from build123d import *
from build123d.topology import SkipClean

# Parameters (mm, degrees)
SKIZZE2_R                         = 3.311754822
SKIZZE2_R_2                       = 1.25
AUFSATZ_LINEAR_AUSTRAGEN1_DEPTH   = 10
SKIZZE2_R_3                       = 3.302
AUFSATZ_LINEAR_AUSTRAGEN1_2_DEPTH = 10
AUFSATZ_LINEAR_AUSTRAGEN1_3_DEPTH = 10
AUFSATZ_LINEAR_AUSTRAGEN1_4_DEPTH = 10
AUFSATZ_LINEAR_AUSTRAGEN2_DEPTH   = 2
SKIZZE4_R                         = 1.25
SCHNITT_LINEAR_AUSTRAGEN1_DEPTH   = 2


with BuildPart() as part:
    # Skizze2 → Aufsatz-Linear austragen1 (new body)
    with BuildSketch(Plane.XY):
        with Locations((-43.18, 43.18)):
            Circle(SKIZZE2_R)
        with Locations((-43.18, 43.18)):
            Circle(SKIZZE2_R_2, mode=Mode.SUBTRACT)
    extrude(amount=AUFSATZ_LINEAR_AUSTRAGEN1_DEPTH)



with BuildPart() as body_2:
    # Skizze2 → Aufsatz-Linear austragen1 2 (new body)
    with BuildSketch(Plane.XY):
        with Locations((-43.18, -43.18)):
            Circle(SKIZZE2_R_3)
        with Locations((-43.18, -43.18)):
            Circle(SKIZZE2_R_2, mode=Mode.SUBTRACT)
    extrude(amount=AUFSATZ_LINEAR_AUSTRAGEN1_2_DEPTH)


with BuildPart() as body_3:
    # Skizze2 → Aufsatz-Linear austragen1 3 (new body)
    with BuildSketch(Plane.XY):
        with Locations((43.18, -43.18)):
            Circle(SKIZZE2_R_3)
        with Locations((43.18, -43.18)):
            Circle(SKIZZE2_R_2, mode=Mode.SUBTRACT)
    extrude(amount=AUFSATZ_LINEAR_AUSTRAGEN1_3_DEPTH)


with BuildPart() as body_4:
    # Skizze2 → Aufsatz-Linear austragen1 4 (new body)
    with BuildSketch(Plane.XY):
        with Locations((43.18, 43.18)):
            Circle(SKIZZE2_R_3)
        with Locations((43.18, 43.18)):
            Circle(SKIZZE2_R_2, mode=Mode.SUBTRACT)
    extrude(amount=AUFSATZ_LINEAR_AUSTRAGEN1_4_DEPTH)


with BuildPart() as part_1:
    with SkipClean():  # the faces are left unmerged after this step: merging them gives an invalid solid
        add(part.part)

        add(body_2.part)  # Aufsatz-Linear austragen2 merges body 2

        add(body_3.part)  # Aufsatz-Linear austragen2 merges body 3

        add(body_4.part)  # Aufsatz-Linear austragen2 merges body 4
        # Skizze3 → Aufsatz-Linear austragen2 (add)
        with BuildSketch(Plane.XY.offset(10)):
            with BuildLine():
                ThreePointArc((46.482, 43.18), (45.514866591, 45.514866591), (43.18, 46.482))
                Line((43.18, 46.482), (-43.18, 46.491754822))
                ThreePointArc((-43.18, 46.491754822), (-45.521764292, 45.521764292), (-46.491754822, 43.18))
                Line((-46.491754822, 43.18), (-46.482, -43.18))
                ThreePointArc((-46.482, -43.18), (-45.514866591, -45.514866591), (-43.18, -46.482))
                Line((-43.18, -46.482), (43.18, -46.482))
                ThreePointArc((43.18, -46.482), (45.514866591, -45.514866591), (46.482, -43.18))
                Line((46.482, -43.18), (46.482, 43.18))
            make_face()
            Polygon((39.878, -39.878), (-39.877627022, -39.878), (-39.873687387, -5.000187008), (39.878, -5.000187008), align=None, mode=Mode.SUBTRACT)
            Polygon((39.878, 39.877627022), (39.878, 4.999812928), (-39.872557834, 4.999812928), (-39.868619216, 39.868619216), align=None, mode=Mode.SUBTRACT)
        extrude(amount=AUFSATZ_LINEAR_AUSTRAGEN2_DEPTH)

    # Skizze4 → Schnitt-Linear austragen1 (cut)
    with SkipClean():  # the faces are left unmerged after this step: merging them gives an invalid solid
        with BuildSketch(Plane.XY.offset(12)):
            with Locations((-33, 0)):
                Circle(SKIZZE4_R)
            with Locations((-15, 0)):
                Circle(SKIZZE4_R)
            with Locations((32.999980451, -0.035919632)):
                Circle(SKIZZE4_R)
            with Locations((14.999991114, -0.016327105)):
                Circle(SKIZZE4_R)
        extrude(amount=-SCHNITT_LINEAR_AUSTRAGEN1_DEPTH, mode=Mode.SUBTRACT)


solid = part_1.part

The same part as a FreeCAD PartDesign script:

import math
import FreeCAD as App
import Part
import Sketcher
from FreeCAD import Vector
Q = App.Units.Quantity

doc = App.newDocument("Part")
body = doc.addObject("PartDesign::Body", "Body")

# Sketch on XY plane
sketch1 = body.newObject("Sketcher::SketchObject", "Sketch")
sketch1.AttachmentSupport = (doc.getObject("XY_Plane"), [""])
sketch1.MapMode = "FlatFace"
sketch1.addGeometry(Part.Circle(Vector(-43.18, 43.18, 0), Vector(0, 0, 1), 3.311755), False)
sketch1.addGeometry(Part.Circle(Vector(-43.18, 43.18, 0), Vector(0, 0, 1), 1.25), False)
sketch1.addConstraint(Sketcher.Constraint("Coincident", 1, 3, 0, 3))
sketch1.addConstraint(Sketcher.Constraint("Diameter", 1, Q("2.5 mm")))
sketch1.addConstraint(Sketcher.Constraint("Diameter", 0, Q("6.62351 mm")))
sketch1.addConstraint(Sketcher.Constraint("DistanceX", 0, 3, -1, 1, Q("43.18 mm")))
sketch1.addConstraint(Sketcher.Constraint("DistanceY", -1, 1, 0, 3, Q("43.18 mm")))
pad1 = body.newObject("PartDesign::Pad", "Pad")
pad1.Profile = sketch1
pad1.Length = 10
body2 = doc.addObject("PartDesign::Body", "Body001")

# Sketch on XY plane
sketch2 = body2.newObject("Sketcher::SketchObject", "Sketch001")
sketch2.AttachmentSupport = (doc.getObject("XY_Plane001"), [""])
sketch2.MapMode = "FlatFace"
sketch2.addGeometry(Part.Circle(Vector(-43.18, -43.18, 0), Vector(0, 0, 1), 3.302), False)
sketch2.addGeometry(Part.Circle(Vector(-43.18, -43.18, 0), Vector(0, 0, 1), 1.25), False)
sketch2.addConstraint(Sketcher.Constraint("Coincident", 1, 3, 0, 3))
sketch2.addConstraint(Sketcher.Constraint("Diameter", 1, Q("2.5 mm")))
sketch2.addConstraint(Sketcher.Constraint("Diameter", 0, Q("6.604 mm")))
sketch2.addConstraint(Sketcher.Constraint("DistanceX", 0, 3, -1, 1, Q("43.18 mm")))
sketch2.addConstraint(Sketcher.Constraint("DistanceY", 0, 3, -1, 1, Q("43.18 mm")))
pad2 = body2.newObject("PartDesign::Pad", "Pad001")
pad2.Profile = sketch2
pad2.Length = 10
body3 = doc.addObject("PartDesign::Body", "Body002")

# Sketch on XY plane
sketch3 = body3.newObject("Sketcher::SketchObject", "Sketch002")
sketch3.AttachmentSupport = (doc.getObject("XY_Plane002"), [""])
sketch3.MapMode = "FlatFace"
sketch3.addGeometry(Part.Circle(Vector(43.18, -43.18, 0), Vector(0, 0, 1), 3.302), False)
sketch3.addGeometry(Part.Circle(Vector(43.18, -43.18, 0), Vector(0, 0, 1), 1.25), False)
sketch3.addConstraint(Sketcher.Constraint("Coincident", 1, 3, 0, 3))
sketch3.addConstraint(Sketcher.Constraint("Diameter", 1, Q("2.5 mm")))
sketch3.addConstraint(Sketcher.Constraint("Diameter", 0, Q("6.604 mm")))
sketch3.addConstraint(Sketcher.Constraint("DistanceX", -1, 1, 0, 3, Q("43.18 mm")))
sketch3.addConstraint(Sketcher.Constraint("DistanceY", 0, 3, -1, 1, Q("43.18 mm")))
pad3 = body3.newObject("PartDesign::Pad", "Pad002")
pad3.Profile = sketch3
pad3.Length = 10
body4 = doc.addObject("PartDesign::Body", "Body003")

# Sketch on XY plane
sketch4 = body4.newObject("Sketcher::SketchObject", "Sketch003")
sketch4.AttachmentSupport = (doc.getObject("XY_Plane003"), [""])
sketch4.MapMode = "FlatFace"
sketch4.addGeometry(Part.Circle(Vector(43.18, 43.18, 0), Vector(0, 0, 1), 3.302), False)
sketch4.addGeometry(Part.Circle(Vector(43.18, 43.18, 0), Vector(0, 0, 1), 1.25), False)
sketch4.addConstraint(Sketcher.Constraint("Coincident", 1, 3, 0, 3))
sketch4.addConstraint(Sketcher.Constraint("Diameter", 1, Q("2.5 mm")))
sketch4.addConstraint(Sketcher.Constraint("Diameter", 0, Q("6.604 mm")))
sketch4.addConstraint(Sketcher.Constraint("DistanceX", -1, 1, 0, 3, Q("43.18 mm")))
sketch4.addConstraint(Sketcher.Constraint("DistanceY", -1, 1, 0, 3, Q("43.18 mm")))
pad4 = body4.newObject("PartDesign::Pad", "Pad003")
pad4.Profile = sketch4
pad4.Length = 10
body.AllowCompound = True
doc.recompute()

boolean = body.newObject("PartDesign::Boolean", "Boolean")
boolean.Type = "Fuse"
boolean.addObjects([body2])
doc.recompute()

boolean2 = body.newObject("PartDesign::Boolean", "Boolean001")
boolean2.Type = "Fuse"
boolean2.addObjects([body3])
doc.recompute()

boolean3 = body.newObject("PartDesign::Boolean", "Boolean002")
boolean3.Type = "Fuse"
boolean3.addObjects([body4])

# Sketch on XY plane
sketch5 = body.newObject("Sketcher::SketchObject", "Sketch004")
sketch5.AttachmentSupport = (doc.getObject("XY_Plane"), [""])
sketch5.MapMode = "FlatFace"
sketch5.AttachmentOffset = App.Placement(Vector(0, 0, 10), App.Rotation())
sketch5.addGeometry(Part.ArcOfCircle(Part.Circle(Vector(43.18, 43.18, 0), Vector(0, 0, 1), 3.302), math.radians(0), math.radians(90)), False)
sketch5.addGeometry(Part.LineSegment(Vector(43.18, 46.482, 0), Vector(-43.18, 46.491755, 0)), False)
sketch5.addGeometry(Part.ArcOfCircle(Part.Circle(Vector(-43.18, 43.18, 0), Vector(0, 0, 1), 3.311755), math.radians(90), math.radians(180)), False)
sketch5.addGeometry(Part.LineSegment(Vector(-46.491755, 43.18, 0), Vector(-46.482, -43.18, 0)), False)
sketch5.addGeometry(Part.ArcOfCircle(Part.Circle(Vector(-43.18, -43.18, 0), Vector(0, 0, 1), 3.302), math.radians(-180), math.radians(-90)), False)
sketch5.addGeometry(Part.LineSegment(Vector(-43.18, -46.482, 0), Vector(43.18, -46.482, 0)), False)
sketch5.addGeometry(Part.ArcOfCircle(Part.Circle(Vector(43.18, -43.18, 0), Vector(0, 0, 1), 3.302), math.radians(-90), math.radians(0)), False)
sketch5.addGeometry(Part.LineSegment(Vector(46.482, -43.18, 0), Vector(46.482, 43.18, 0)), False)
sketch5.addGeometry(Part.LineSegment(Vector(39.878, -5.000187, 0), Vector(39.878, -39.878, 0)), False)
sketch5.addGeometry(Part.LineSegment(Vector(39.878, -39.878, 0), Vector(-39.877627, -39.878, 0)), False)
sketch5.addGeometry(Part.LineSegment(Vector(-39.877627, -39.878, 0), Vector(-39.873687, -5.000187, 0)), False)
sketch5.addGeometry(Part.LineSegment(Vector(-39.873687, -5.000187, 0), Vector(39.878, -5.000187, 0)), False)
sketch5.addGeometry(Part.LineSegment(Vector(-39.868619, 39.868619, 0), Vector(39.878, 39.877627, 0)), False)
sketch5.addGeometry(Part.LineSegment(Vector(39.878, 39.877627, 0), Vector(39.878, 4.999813, 0)), False)
sketch5.addGeometry(Part.LineSegment(Vector(39.878, 4.999813, 0), Vector(-39.872558, 4.999813, 0)), False)
sketch5.addGeometry(Part.LineSegment(Vector(-39.872558, 4.999813, 0), Vector(-39.868619, 39.868619, 0)), False)
sketch5.addConstraint(Sketcher.Constraint("Coincident", 0, 2, 1, 1))
sketch5.addConstraint(Sketcher.Constraint("Coincident", 1, 2, 2, 1))
sketch5.addConstraint(Sketcher.Constraint("Coincident", 2, 2, 3, 1))
sketch5.addConstraint(Sketcher.Constraint("Coincident", 3, 2, 4, 1))
sketch5.addConstraint(Sketcher.Constraint("Tangent", 4, 2, 5, 1))
sketch5.addConstraint(Sketcher.Constraint("Tangent", 5, 2, 6, 1))
sketch5.addConstraint(Sketcher.Constraint("Tangent", 6, 2, 7, 1))
sketch5.addConstraint(Sketcher.Constraint("Tangent", 7, 2, 0, 1))
sketch5.addConstraint(Sketcher.Constraint("Coincident", 8, 2, 9, 1))
sketch5.addConstraint(Sketcher.Constraint("Coincident", 9, 2, 10, 1))
sketch5.addConstraint(Sketcher.Constraint("Coincident", 10, 2, 11, 1))
sketch5.addConstraint(Sketcher.Constraint("Coincident", 11, 2, 8, 1))
sketch5.addConstraint(Sketcher.Constraint("Coincident", 12, 2, 13, 1))
sketch5.addConstraint(Sketcher.Constraint("Coincident", 13, 2, 14, 1))
sketch5.addConstraint(Sketcher.Constraint("Coincident", 14, 2, 15, 1))
sketch5.addConstraint(Sketcher.Constraint("Coincident", 15, 2, 12, 1))
sketch5.addConstraint(Sketcher.Constraint("Horizontal", 5))
sketch5.addConstraint(Sketcher.Constraint("Vertical", 7))
sketch5.addConstraint(Sketcher.Constraint("Vertical", 8))
sketch5.addConstraint(Sketcher.Constraint("Horizontal", 9))
sketch5.addConstraint(Sketcher.Constraint("Horizontal", 11))
sketch5.addConstraint(Sketcher.Constraint("Vertical", 13))
sketch5.addConstraint(Sketcher.Constraint("Horizontal", 14))
sketch5.addConstraint(Sketcher.Constraint("Equal", 0, 4))
sketch5.addConstraint(Sketcher.Constraint("Equal", 4, 6))
sketch5.addConstraint(Sketcher.Constraint("Symmetric", 0, 3, 4, 3, -1, 1))
sketch5.addConstraint(Sketcher.Constraint("Symmetric", 2, 3, 6, 3, -1, 1))
sketch5.addConstraint(Sketcher.Constraint("Perpendicular", 1, 10))
sketch5.addConstraint(Sketcher.Constraint("Perpendicular", 3, 12))
sketch5.addConstraint(Sketcher.Constraint("Parallel", 10, 15))
sketch5.addConstraint(Sketcher.Constraint("Horizontal", 0, 3, 2, 2))
sketch5.addConstraint(Sketcher.Constraint("Horizontal", 6, 3, 3, 2))
sketch5.addConstraint(Sketcher.Constraint("Vertical", 6, 3, 0, 2))
sketch5.addConstraint(Sketcher.Constraint("Vertical", 4, 3, 1, 2))
sketch5.addConstraint(Sketcher.Constraint("Vertical", 11, 2, 12, 2))
sketch5.addConstraint(Sketcher.Constraint("Equal", 5, 7))
sketch5.addConstraint(Sketcher.Constraint("Equal", 8, 13))
sketch5.addConstraint(Sketcher.Constraint("Radius", 0, Q("3.302 mm")))
sketch5.addConstraint(Sketcher.Constraint("DistanceY", 11, 2, 13, 2, Q("10 mm")))
sketch5.addConstraint(Sketcher.Constraint("DistanceX", 5, 1, 5, 2, Q("86.36 mm")))
sketch5.addConstraint(Sketcher.Constraint("DistanceX", -1, 1, 8, 2, Q("39.878 mm")))
sketch5.addConstraint(Sketcher.Constraint("DistanceY", 8, 2, -1, 1, Q("39.878 mm")))
sketch5.addConstraint(Sketcher.Constraint("Radius", 2, Q("3.311755 mm")))
sketch5.addConstraint(Sketcher.Constraint("Distance", 12, Q("79.74662 mm")))
sketch5.addConstraint(Sketcher.Constraint("DistanceX", 9, 2, 9, 1, Q("79.755627 mm")))
sketch5.addConstraint(Sketcher.Constraint("DistanceY", 8, 2, 8, 1, Q("34.877813 mm")))
pad5 = body.newObject("PartDesign::Pad", "Pad004")
pad5.Profile = sketch5
pad5.Length = 2

# Sketch on XY plane
sketch6 = body.newObject("Sketcher::SketchObject", "Sketch005")
sketch6.AttachmentSupport = (doc.getObject("XY_Plane"), [""])
sketch6.MapMode = "FlatFace"
sketch6.AttachmentOffset = App.Placement(Vector(0, 0, 12), App.Rotation())
sketch6.addGeometry(Part.Circle(Vector(-33, 0, 0), Vector(0, 0, 1), 1.25), False)
sketch6.addGeometry(Part.Circle(Vector(-15, 0, 0), Vector(0, 0, 1), 1.25), False)
sketch6.addGeometry(Part.Circle(Vector(32.99998, -0.03592, 0), Vector(0, 0, 1), 1.25), False)
sketch6.addGeometry(Part.Circle(Vector(14.999991, -0.016327, 0), Vector(0, 0, 1), 1.25), False)
sketch6.addConstraint(Sketcher.Constraint("Equal", 0, 1))
sketch6.addConstraint(Sketcher.Constraint("Equal", 1, 2))
sketch6.addConstraint(Sketcher.Constraint("Equal", 2, 3))
sketch6.addConstraint(Sketcher.Constraint("PointOnObject", 0, 3, -1))
sketch6.addConstraint(Sketcher.Constraint("PointOnObject", 1, 3, -1))
sketch6.addConstraint(Sketcher.Constraint("Diameter", 0, Q("2.5 mm")))
sketch6.addConstraint(Sketcher.Constraint("DistanceX", 0, 3, -1, 1, Q("33 mm")))
sketch6.addConstraint(Sketcher.Constraint("DistanceX", 1, 3, -1, 1, Q("15 mm")))
sketch6.addConstraint(Sketcher.Constraint("DistanceX", -1, 1, 2, 3, Q("32.99998 mm")))
sketch6.addConstraint(Sketcher.Constraint("DistanceY", 2, 3, -1, 1, Q("0.03592 mm")))
sketch6.addConstraint(Sketcher.Constraint("DistanceX", -1, 1, 3, 3, Q("14.999991 mm")))
sketch6.addConstraint(Sketcher.Constraint("DistanceY", 3, 3, -1, 1, Q("0.016327 mm")))
pocket1 = body.newObject("PartDesign::Pocket", "Pocket")
pocket1.Profile = sketch6
pocket1.Length = 2

doc.recompute()
